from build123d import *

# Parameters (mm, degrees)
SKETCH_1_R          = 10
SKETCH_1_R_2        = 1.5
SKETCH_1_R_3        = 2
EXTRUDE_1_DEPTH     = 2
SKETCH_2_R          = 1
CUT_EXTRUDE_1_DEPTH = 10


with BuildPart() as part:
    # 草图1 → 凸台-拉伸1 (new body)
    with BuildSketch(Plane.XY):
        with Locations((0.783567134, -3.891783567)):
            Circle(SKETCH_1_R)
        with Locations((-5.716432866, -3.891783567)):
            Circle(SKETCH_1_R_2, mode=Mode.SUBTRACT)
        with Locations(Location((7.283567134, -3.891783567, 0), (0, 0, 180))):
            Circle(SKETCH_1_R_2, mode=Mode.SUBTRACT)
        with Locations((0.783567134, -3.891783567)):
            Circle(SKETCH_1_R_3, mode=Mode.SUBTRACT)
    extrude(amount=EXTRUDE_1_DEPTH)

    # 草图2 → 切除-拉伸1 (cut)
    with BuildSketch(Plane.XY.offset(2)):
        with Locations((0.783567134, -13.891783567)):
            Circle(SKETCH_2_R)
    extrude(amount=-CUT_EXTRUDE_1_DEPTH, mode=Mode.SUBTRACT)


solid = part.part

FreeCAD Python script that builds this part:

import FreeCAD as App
import Part
import Sketcher
from FreeCAD import Vector

doc = App.newDocument("Part")
body = doc.addObject("PartDesign::Body", "Body")

sketch1 = doc.addObject("Sketcher::SketchObject", "Sketch")
body.addObject(sketch1)
sketch1.AttachmentSupport = (doc.XY_Plane, [""])
sketch1.MapMode = "FlatFace"
sketch1.addGeometry(Part.Circle(Vector(0.8, -3.9, 0), Vector(0, 0, 1), 10), False)
sketch1.addGeometry(Part.Circle(Vector(-5.7, -3.9, 0), Vector(0, 0, 1), 1.5), False)
sketch1.addGeometry(Part.Circle(Vector(0.8, -3.9, 0), Vector(0, 0, 1), 2), False)
sketch1.addGeometry(Part.Circle(Vector(7.3, -3.9, 0), Vector(0, 0, 1), 1.5), False)
sketch1.addConstraint(Sketcher.Constraint("Coincident", 2, 3, 0, 3))
sketch1.addConstraint(Sketcher.Constraint("Equal", 1, 3))
sketch1.addConstraint(Sketcher.Constraint("Horizontal", 0, 3, 1, 3))
sketch1.addConstraint(Sketcher.Constraint("Horizontal", 2, 3, 3, 3))
sketch1.addConstraint(Sketcher.Constraint("Diameter", 0, 20.0))
sketch1.addConstraint(Sketcher.Constraint("Diameter", 1, 3.0))
sketch1.addConstraint(Sketcher.Constraint("Diameter", 2, 4.0))
sketch1.addConstraint(Sketcher.Constraint("DistanceX", 1, 3, 3, 3, 13.0))
sketch1.addConstraint(Sketcher.Constraint("DistanceX", 1, 3, 0, 3, 6.5))
sketch1.addConstraint(Sketcher.Constraint("DistanceX", -1, 1, 0, 3, 0.783567))
sketch1.addConstraint(Sketcher.Constraint("DistanceY", 0, 3, -1, 1, 3.891784))
pad1 = doc.addObject("PartDesign::Pad", "Pad")
body.addObject(pad1)
pad1.Profile = sketch1
pad1.Length = 2

sketch2 = doc.addObject("Sketcher::SketchObject", "Sketch001")
body.addObject(sketch2)
sketch2.AttachmentSupport = (doc.XY_Plane, [""])
sketch2.MapMode = "FlatFace"
sketch2.AttachmentOffset = App.Placement(Vector(0, 0, 2), App.Rotation())
sketch2.addGeometry(Part.Circle(Vector(0.8, -13.9, 0), Vector(0, 0, 1), 1), False)
sketch2.addConstraint(Sketcher.Constraint("Diameter", 0, 2.0))
sketch2.addConstraint(Sketcher.Constraint("DistanceX", -1, 1, 0, 3, 0.783567))
sketch2.addConstraint(Sketcher.Constraint("DistanceY", 0, 3, -1, 1, 13.891784))
pocket1 = doc.addObject("PartDesign::Pocket", "Pocket")
body.addObject(pocket1)
pocket1.Profile = sketch2
pocket1.Length = 10

doc.recompute()
